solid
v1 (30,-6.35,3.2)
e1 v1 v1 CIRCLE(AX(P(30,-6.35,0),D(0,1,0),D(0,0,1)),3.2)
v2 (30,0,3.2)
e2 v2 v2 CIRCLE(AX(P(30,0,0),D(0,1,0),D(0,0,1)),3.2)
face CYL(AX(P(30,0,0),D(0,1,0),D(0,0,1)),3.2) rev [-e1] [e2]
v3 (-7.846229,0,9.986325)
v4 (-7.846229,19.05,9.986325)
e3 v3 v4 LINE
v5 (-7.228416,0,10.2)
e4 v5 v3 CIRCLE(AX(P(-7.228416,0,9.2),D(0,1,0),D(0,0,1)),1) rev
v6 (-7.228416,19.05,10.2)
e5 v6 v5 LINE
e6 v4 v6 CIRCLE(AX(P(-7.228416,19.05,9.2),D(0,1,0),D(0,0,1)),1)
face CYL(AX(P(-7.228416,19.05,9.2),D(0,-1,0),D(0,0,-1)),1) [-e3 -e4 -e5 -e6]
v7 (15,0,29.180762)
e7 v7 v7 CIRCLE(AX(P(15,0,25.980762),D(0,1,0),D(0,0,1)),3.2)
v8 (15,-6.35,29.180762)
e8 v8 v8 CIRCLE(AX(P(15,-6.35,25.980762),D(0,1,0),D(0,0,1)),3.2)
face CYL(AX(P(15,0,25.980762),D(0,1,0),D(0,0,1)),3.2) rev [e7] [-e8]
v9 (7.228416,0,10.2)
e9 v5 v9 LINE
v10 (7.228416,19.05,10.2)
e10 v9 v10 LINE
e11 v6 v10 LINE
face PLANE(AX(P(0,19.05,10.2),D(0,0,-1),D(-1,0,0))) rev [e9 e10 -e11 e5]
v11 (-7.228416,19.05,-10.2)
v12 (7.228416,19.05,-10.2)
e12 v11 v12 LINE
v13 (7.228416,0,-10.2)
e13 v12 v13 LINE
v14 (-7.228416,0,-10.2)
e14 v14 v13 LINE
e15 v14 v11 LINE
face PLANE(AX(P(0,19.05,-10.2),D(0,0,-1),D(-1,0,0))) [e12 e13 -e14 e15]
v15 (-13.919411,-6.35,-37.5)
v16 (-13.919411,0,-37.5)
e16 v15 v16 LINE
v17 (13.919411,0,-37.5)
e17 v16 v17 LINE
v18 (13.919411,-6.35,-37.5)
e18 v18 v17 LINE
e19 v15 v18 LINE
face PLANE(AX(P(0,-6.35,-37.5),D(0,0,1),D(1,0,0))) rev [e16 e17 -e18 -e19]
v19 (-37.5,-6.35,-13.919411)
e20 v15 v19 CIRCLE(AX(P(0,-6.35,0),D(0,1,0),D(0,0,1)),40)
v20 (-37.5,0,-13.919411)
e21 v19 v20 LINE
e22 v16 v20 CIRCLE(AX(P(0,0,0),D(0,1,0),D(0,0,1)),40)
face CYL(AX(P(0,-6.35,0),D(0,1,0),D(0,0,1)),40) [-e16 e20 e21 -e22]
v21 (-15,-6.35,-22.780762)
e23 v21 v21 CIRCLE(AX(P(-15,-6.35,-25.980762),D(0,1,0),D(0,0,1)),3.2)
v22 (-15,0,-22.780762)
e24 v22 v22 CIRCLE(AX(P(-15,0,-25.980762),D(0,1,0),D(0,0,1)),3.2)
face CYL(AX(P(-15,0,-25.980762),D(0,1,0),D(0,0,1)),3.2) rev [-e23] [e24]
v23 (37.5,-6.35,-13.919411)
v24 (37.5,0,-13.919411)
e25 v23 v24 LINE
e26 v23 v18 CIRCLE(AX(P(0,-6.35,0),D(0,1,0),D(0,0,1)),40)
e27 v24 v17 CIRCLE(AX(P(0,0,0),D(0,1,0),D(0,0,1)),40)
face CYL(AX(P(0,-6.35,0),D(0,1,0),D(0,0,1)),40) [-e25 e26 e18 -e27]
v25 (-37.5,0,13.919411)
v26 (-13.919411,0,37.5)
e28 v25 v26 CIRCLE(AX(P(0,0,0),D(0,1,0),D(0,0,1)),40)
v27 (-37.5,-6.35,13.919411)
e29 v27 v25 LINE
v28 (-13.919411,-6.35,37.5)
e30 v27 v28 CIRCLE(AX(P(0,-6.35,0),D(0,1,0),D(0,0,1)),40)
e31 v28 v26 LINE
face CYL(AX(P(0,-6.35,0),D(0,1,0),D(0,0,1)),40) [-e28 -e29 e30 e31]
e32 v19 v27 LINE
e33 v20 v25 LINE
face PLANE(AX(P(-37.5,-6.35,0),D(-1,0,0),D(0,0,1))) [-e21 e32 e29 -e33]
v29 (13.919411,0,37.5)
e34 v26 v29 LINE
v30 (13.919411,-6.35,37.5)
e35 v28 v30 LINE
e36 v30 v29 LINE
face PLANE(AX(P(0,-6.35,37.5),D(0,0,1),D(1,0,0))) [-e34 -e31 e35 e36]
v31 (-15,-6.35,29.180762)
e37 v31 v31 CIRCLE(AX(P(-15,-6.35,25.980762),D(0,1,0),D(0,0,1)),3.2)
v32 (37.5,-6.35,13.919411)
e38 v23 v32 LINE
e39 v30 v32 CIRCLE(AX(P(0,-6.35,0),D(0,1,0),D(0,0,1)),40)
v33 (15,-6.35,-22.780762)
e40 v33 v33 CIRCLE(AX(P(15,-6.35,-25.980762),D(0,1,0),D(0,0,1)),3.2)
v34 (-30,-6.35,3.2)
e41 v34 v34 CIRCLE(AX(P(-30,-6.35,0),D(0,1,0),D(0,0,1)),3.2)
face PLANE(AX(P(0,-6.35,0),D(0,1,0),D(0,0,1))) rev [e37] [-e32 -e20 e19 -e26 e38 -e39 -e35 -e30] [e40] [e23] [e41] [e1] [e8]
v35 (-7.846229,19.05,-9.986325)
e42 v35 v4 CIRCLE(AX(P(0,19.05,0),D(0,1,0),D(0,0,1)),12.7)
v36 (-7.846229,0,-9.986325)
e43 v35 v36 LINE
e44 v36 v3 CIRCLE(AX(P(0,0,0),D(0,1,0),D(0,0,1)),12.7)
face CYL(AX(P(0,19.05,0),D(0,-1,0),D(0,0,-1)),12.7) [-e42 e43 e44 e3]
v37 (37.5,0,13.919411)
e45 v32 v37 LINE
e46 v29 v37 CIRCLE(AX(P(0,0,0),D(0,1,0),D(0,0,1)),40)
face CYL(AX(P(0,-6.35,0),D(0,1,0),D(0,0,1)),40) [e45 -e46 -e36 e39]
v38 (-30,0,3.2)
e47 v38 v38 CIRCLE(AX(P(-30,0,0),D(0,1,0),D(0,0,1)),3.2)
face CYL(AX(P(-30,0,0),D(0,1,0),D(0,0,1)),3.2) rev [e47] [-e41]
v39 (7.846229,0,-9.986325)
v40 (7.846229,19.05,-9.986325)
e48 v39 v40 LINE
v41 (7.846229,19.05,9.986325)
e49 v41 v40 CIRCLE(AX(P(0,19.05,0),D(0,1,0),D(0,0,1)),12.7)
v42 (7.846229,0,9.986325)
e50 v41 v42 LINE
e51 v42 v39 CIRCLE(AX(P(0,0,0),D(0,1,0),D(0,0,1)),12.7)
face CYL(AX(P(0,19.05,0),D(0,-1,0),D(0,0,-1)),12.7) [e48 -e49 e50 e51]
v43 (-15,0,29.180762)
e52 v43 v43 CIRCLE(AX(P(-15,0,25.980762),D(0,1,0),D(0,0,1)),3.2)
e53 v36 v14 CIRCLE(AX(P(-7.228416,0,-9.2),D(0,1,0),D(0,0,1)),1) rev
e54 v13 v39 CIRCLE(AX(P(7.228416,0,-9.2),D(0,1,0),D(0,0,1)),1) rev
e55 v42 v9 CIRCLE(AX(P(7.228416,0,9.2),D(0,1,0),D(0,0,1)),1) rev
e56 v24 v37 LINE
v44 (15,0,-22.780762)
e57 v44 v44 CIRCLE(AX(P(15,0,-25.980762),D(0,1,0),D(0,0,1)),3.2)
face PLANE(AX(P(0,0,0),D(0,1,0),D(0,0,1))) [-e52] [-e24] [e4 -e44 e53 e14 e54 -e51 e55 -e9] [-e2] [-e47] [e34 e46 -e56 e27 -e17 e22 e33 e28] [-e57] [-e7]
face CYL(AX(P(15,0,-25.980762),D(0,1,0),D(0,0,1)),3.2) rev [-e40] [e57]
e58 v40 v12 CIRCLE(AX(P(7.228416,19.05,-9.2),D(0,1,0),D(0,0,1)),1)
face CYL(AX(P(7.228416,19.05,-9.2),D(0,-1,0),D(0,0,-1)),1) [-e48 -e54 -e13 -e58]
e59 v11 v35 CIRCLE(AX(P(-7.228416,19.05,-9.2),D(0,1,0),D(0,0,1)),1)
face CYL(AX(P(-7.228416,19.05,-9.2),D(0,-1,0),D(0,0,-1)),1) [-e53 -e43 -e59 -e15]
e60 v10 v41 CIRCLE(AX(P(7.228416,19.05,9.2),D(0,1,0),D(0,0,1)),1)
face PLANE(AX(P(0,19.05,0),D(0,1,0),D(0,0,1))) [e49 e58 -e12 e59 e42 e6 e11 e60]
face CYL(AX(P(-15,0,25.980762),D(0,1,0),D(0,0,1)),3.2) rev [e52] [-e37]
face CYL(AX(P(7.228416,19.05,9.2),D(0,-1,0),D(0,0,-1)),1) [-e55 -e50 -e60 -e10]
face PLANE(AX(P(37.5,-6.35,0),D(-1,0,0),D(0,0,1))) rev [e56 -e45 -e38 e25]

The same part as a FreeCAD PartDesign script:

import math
import FreeCAD as App
import Part
import Sketcher

V = App.Vector


def edges_at(feature, points):
    """Names of the edges that pass closest to the given points."""
    edges = feature.Shape.Edges
    near = lambda p: min(range(len(edges)), key=lambda i: edges[i].distToShape(Part.Vertex(*p))[0])
    return sorted({f"Edge{near(p) + 1}" for p in points})

doc = App.newDocument("Part")
body = doc.addObject("PartDesign::Body", "Body")

sketch1 = body.newObject("Sketcher::SketchObject", "Sketch")
sketch1.AttachmentSupport = (doc.getObject("XZ_Plane"), [""])
sketch1.MapMode = "FlatFace"
sketch1.addGeometry(Part.LineSegment(V(7.566373, -10.2, 0), V(-7.566373, -10.2, 0)), False)
sketch1.addGeometry(Part.ArcOfCircle(Part.Circle(V(0, 0, 0), V(0, 0, 1), 12.7), math.radians(126.568071), math.radians(233.431929)), False)
sketch1.addGeometry(Part.LineSegment(V(-7.566373, 10.2, 0), V(7.566373, 10.2, 0)), False)
sketch1.addGeometry(Part.ArcOfCircle(Part.Circle(V(0, 0, 0), V(0, 0, 1), 12.7), math.radians(-53.431929), math.radians(53.431929)), False)
sketch1.addConstraint(Sketcher.Constraint("Coincident", 0, 2, 1, 2))
sketch1.addConstraint(Sketcher.Constraint("Coincident", 1, 1, 2, 1))
sketch1.addConstraint(Sketcher.Constraint("Coincident", 2, 2, 3, 2))
sketch1.addConstraint(Sketcher.Constraint("Coincident", 3, 1, 0, 1))
sketch1.addConstraint(Sketcher.Constraint("Horizontal", 0))
sketch1.addConstraint(Sketcher.Constraint("Horizontal", 2))
sketch1.addConstraint(Sketcher.Constraint("Coincident", 1, 3, -1, 1))
sketch1.addConstraint(Sketcher.Constraint("Coincident", 3, 3, -1, 1))
sketch1.addConstraint(Sketcher.Constraint("Equal", 1, 3))
sketch1.addConstraint(Sketcher.Constraint("Vertical", 0, 2, 1, 1))
sketch1.addConstraint(Sketcher.Constraint("Radius", 1, 12.7))
sketch1.addConstraint(Sketcher.Constraint("DistanceY", 0, 2, -1, 1, 10.2))
pad1 = body.newObject("PartDesign::Pad", "Pad")
pad1.Profile = sketch1
pad1.Length = 19.05
pad1.Reversed = True

sketch2 = body.newObject("Sketcher::SketchObject", "Sketch001")
sketch2.AttachmentSupport = (doc.getObject("XZ_Plane"), [""])
sketch2.MapMode = "FlatFace"
sketch2.addGeometry(Part.LineSegment(V(13.919411, -37.5, 0), V(-13.919411, -37.5, 0)), False)
sketch2.addGeometry(Part.ArcOfCircle(Part.Circle(V(0, 0, 0), V(0, 0, 1), 40), math.radians(-159.635865), math.radians(-110.364135)), False)
sketch2.addGeometry(Part.LineSegment(V(-37.5, -13.919411, 0), V(-37.5, 13.919411, 0)), False)
sketch2.addGeometry(Part.ArcOfCircle(Part.Circle(V(0, 0, 0), V(0, 0, 1), 40), math.radians(110.364135), math.radians(159.635865)), False)
sketch2.addGeometry(Part.LineSegment(V(-13.919411, 37.5, 0), V(13.919411, 37.5, 0)), False)
sketch2.addGeometry(Part.ArcOfCircle(Part.Circle(V(0, 0, 0), V(0, 0, 1), 40), math.radians(20.364135), math.radians(69.635865)), False)
sketch2.addGeometry(Part.LineSegment(V(37.5, 13.919411, 0), V(37.5, -13.919411, 0)), False)
sketch2.addGeometry(Part.ArcOfCircle(Part.Circle(V(0, 0, 0), V(0, 0, 1), 40), math.radians(-69.635865), math.radians(-20.364135)), False)
sketch2.addConstraint(Sketcher.Constraint("Coincident", 0, 2, 1, 2))
sketch2.addConstraint(Sketcher.Constraint("Coincident", 1, 1, 2, 1))
sketch2.addConstraint(Sketcher.Constraint("Coincident", 2, 2, 3, 2))
sketch2.addConstraint(Sketcher.Constraint("Coincident", 3, 1, 4, 1))
sketch2.addConstraint(Sketcher.Constraint("Coincident", 4, 2, 5, 2))
sketch2.addConstraint(Sketcher.Constraint("Coincident", 5, 1, 6, 1))
sketch2.addConstraint(Sketcher.Constraint("Coincident", 6, 2, 7, 2))
sketch2.addConstraint(Sketcher.Constraint("Coincident", 7, 1, 0, 1))
sketch2.addConstraint(Sketcher.Constraint("Horizontal", 0))
sketch2.addConstraint(Sketcher.Constraint("Vertical", 2))
sketch2.addConstraint(Sketcher.Constraint("Horizontal", 4))
sketch2.addConstraint(Sketcher.Constraint("Vertical", 6))
sketch2.addConstraint(Sketcher.Constraint("Coincident", 1, 3, -1, 1))
sketch2.addConstraint(Sketcher.Constraint("Coincident", 3, 3, -1, 1))
sketch2.addConstraint(Sketcher.Constraint("Coincident", 5, 3, -1, 1))
sketch2.addConstraint(Sketcher.Constraint("Coincident", 7, 3, -1, 1))
sketch2.addConstraint(Sketcher.Constraint("Equal", 1, 3))
sketch2.addConstraint(Sketcher.Constraint("Equal", 3, 5))
sketch2.addConstraint(Sketcher.Constraint("Equal", 5, 7))
sketch2.addConstraint(Sketcher.Constraint("Horizontal", 2, 2, 5, 1))
sketch2.addConstraint(Sketcher.Constraint("Vertical", 0, 2, 3, 1))
sketch2.addConstraint(Sketcher.Constraint("Equal", 4, 2))
sketch2.addConstraint(Sketcher.Constraint("Radius", 1, 40.0))
sketch2.addConstraint(Sketcher.Constraint("DistanceY", 0, 2, -1, 1, 37.5))
pad2 = body.newObject("PartDesign::Pad", "Pad001")
pad2.Profile = sketch2
pad2.Length = 6.35

sketch3 = body.newObject("Sketcher::SketchObject", "Sketch002")
sketch3.AttachmentSupport = (doc.getObject("XZ_Plane"), [""])
sketch3.MapMode = "FlatFace"
sketch3.addGeometry(Part.Circle(V(-30, 0, 0), V(0, 0, 1), 3.2), False)
sketch3.addGeometry(Part.Circle(V(-15, -25.980762, 0), V(0, 0, 1), 3.2), False)
sketch3.addGeometry(Part.Circle(V(15, -25.980762, 0), V(0, 0, 1), 3.2), False)
sketch3.addGeometry(Part.Circle(V(30, 0, 0), V(0, 0, 1), 3.2), False)
sketch3.addGeometry(Part.Circle(V(15, 25.980762, 0), V(0, 0, 1), 3.2), False)
sketch3.addGeometry(Part.Circle(V(-15, 25.980762, 0), V(0, 0, 1), 3.2), False)
sketch3.addConstraint(Sketcher.Constraint("Equal", 0, 1))
sketch3.addConstraint(Sketcher.Constraint("Equal", 1, 2))
sketch3.addConstraint(Sketcher.Constraint("Equal", 2, 3))
sketch3.addConstraint(Sketcher.Constraint("Equal", 3, 4))
sketch3.addConstraint(Sketcher.Constraint("Equal", 4, 5))
sketch3.addConstraint(Sketcher.Constraint("Symmetric", 0, 3, 3, 3, -1, 1))
sketch3.addConstraint(Sketcher.Constraint("Symmetric", 1, 3, 4, 3, -1, 1))
sketch3.addConstraint(Sketcher.Constraint("Symmetric", 2, 3, 5, 3, -1, 1))
sketch3.addConstraint(Sketcher.Constraint("Symmetric", 1, 3, 2, 3, -2))
sketch3.addConstraint(Sketcher.Constraint("PointOnObject", 0, 3, -1))
sketch3.addConstraint(Sketcher.Constraint("Diameter", 0, 6.4))
sketch3.addConstraint(Sketcher.Constraint("DistanceX", 0, 3, -1, 1, 30.0))
sketch3.addConstraint(Sketcher.Constraint("DistanceX", 1, 3, -1, 1, 15.0))
sketch3.addConstraint(Sketcher.Constraint("DistanceY", 1, 3, -1, 1, 25.980762))
doc.recompute()
hole = body.newObject("PartDesign::Hole", "Hole")
hole.Profile = sketch3
hole.ThreadType = "None"
hole.Diameter = 6.4
hole.DepthType = "ThroughAll"
hole.Reversed = True
doc.recompute()

fillet = body.newObject("PartDesign::Fillet", "Fillet")
fillet.Base = (hole, edges_at(hole, [
    (-7.566, 9.525, 10.2),
    (-7.566, 9.525, -10.2),
    (7.566, 9.525, -10.2),
    (7.566, 9.525, 10.2),
]))
fillet.Radius = 1

doc.recompute()
